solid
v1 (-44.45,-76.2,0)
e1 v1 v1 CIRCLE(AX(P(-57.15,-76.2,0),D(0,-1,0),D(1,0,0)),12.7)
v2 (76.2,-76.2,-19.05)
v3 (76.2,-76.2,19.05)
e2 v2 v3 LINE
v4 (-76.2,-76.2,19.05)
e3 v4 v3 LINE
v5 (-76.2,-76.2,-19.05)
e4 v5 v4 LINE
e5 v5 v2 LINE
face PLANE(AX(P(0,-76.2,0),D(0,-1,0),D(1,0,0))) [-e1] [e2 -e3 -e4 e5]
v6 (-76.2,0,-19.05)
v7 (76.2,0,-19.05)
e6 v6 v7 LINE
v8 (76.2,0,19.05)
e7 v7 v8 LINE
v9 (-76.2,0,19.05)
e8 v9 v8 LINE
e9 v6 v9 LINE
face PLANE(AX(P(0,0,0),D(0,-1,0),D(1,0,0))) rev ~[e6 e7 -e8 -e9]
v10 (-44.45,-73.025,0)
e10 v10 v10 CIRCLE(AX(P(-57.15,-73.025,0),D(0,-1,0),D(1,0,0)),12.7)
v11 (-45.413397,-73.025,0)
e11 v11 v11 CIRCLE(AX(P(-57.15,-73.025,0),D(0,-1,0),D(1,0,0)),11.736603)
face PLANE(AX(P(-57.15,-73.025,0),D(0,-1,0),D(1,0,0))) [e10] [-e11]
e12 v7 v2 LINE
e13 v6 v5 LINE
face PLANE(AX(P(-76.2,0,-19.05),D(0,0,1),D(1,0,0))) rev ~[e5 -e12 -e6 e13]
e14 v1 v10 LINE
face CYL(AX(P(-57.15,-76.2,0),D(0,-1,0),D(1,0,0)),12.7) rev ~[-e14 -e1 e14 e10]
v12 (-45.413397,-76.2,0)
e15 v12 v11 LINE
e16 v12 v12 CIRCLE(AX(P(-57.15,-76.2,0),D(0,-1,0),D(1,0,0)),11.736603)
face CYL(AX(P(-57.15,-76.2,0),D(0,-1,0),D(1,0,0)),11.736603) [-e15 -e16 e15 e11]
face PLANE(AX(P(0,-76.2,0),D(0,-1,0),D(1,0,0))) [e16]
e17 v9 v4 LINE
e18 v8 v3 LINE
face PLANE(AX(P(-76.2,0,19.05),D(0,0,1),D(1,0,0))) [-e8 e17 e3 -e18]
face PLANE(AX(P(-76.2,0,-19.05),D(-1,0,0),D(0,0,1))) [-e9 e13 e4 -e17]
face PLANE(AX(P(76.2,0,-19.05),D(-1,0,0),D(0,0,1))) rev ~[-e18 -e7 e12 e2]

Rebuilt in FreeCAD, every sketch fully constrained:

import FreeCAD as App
import Part
import Sketcher

V = App.Vector
Q = App.Units.Quantity


def add_polygon(sketch, points):
    """Adds a closed chain of lines whose ends are joined by coincident constraints."""
    first, n = sketch.GeometryCount, len(points)
    for a, b in zip(points, points[1:] + points[:1]):
        sketch.addGeometry(Part.LineSegment(App.Vector(*a, 0), App.Vector(*b, 0)), False)
    for i in range(n):
        sketch.addConstraint(Sketcher.Constraint("Coincident", first + i, 2, first + (i + 1) % n, 1))

doc = App.newDocument("Part")
params = doc.addObject("Spreadsheet::Sheet", "Params")
for row, (alias, value) in enumerate([
    ("sketch1_width", "6 in"),
    ("sketch1_height", "1.5 in"),
    ("pad1_length", "3 in"),
    ("sketch2_diameter", "1 in"),
    ("pocket1_length", "0.125 in"),
], start=1):
    params.set(f"A{row}", alias)
    params.set(f"B{row}", "=" + value)
    params.setAlias(f"B{row}", alias)

body = doc.addObject("PartDesign::Body", "Body")

# Sketch on XZ plane
sketch1 = body.newObject("Sketcher::SketchObject", "Sketch")
sketch1.AttachmentSupport = (doc.getObject("XZ_Plane"), [""])
sketch1.MapMode = "FlatFace"
add_polygon(sketch1, [(-76, 19), (-76, -19), (76, -19), (76, 19)])  # lines 0-3
sketch1.addConstraint(Sketcher.Constraint("Vertical", 0))
sketch1.addConstraint(Sketcher.Constraint("Horizontal", 1))
sketch1.addConstraint(Sketcher.Constraint("Vertical", 2))
sketch1.addConstraint(Sketcher.Constraint("Horizontal", 3))
sketch1.addConstraint(Sketcher.Constraint("Symmetric", 0, 2, 2, 2, -1, 1))
sketch1.addConstraint(Sketcher.Constraint("DistanceX", 1, 1, 1, 2, Q("6 in")))
sketch1.addConstraint(Sketcher.Constraint("DistanceY", 0, 2, 0, 1, Q("1.5 in")))
sketch1.setExpression("Constraints[9]", "Params.sketch1_width")
sketch1.setExpression("Constraints[10]", "Params.sketch1_height")
pad1 = body.newObject("PartDesign::Pad", "Pad")
pad1.Profile = sketch1
pad1.setExpression("Length", "Params.pad1_length")

# Sketch on XZ plane
sketch2 = body.newObject("Sketcher::SketchObject", "Sketch001")
sketch2.AttachmentSupport = (doc.getObject("XZ_Plane"), [""])
sketch2.MapMode = "FlatFace"
sketch2.AttachmentOffset = App.Placement(V(0, 0, 3 * 25.4), App.Rotation())
sketch2.addGeometry(Part.Circle(V(-57, 0, 0), V(0, 0, 1), 13), False)
sketch2.addGeometry(Part.Circle(V(-57, 0, 0), V(0, 0, 1), 12), False)
sketch2.addConstraint(Sketcher.Constraint("Coincident", 1, 3, 0, 3))
sketch2.addConstraint(Sketcher.Constraint("PointOnObject", 0, 3, -1))
sketch2.addConstraint(Sketcher.Constraint("Diameter", 0, Q("1 in")))
sketch2.addConstraint(Sketcher.Constraint("DistanceX", 0, 3, -1, 1, Q("2.25 in")))
sketch2.addConstraint(Sketcher.Constraint("Diameter", 1, 23.473206))
sketch2.setExpression("Constraints[2]", "Params.sketch2_diameter")
pocket1 = body.newObject("PartDesign::Pocket", "Pocket")
pocket1.Profile = sketch2
pocket1.setExpression("Length", "Params.pocket1_length")

doc.recompute()
